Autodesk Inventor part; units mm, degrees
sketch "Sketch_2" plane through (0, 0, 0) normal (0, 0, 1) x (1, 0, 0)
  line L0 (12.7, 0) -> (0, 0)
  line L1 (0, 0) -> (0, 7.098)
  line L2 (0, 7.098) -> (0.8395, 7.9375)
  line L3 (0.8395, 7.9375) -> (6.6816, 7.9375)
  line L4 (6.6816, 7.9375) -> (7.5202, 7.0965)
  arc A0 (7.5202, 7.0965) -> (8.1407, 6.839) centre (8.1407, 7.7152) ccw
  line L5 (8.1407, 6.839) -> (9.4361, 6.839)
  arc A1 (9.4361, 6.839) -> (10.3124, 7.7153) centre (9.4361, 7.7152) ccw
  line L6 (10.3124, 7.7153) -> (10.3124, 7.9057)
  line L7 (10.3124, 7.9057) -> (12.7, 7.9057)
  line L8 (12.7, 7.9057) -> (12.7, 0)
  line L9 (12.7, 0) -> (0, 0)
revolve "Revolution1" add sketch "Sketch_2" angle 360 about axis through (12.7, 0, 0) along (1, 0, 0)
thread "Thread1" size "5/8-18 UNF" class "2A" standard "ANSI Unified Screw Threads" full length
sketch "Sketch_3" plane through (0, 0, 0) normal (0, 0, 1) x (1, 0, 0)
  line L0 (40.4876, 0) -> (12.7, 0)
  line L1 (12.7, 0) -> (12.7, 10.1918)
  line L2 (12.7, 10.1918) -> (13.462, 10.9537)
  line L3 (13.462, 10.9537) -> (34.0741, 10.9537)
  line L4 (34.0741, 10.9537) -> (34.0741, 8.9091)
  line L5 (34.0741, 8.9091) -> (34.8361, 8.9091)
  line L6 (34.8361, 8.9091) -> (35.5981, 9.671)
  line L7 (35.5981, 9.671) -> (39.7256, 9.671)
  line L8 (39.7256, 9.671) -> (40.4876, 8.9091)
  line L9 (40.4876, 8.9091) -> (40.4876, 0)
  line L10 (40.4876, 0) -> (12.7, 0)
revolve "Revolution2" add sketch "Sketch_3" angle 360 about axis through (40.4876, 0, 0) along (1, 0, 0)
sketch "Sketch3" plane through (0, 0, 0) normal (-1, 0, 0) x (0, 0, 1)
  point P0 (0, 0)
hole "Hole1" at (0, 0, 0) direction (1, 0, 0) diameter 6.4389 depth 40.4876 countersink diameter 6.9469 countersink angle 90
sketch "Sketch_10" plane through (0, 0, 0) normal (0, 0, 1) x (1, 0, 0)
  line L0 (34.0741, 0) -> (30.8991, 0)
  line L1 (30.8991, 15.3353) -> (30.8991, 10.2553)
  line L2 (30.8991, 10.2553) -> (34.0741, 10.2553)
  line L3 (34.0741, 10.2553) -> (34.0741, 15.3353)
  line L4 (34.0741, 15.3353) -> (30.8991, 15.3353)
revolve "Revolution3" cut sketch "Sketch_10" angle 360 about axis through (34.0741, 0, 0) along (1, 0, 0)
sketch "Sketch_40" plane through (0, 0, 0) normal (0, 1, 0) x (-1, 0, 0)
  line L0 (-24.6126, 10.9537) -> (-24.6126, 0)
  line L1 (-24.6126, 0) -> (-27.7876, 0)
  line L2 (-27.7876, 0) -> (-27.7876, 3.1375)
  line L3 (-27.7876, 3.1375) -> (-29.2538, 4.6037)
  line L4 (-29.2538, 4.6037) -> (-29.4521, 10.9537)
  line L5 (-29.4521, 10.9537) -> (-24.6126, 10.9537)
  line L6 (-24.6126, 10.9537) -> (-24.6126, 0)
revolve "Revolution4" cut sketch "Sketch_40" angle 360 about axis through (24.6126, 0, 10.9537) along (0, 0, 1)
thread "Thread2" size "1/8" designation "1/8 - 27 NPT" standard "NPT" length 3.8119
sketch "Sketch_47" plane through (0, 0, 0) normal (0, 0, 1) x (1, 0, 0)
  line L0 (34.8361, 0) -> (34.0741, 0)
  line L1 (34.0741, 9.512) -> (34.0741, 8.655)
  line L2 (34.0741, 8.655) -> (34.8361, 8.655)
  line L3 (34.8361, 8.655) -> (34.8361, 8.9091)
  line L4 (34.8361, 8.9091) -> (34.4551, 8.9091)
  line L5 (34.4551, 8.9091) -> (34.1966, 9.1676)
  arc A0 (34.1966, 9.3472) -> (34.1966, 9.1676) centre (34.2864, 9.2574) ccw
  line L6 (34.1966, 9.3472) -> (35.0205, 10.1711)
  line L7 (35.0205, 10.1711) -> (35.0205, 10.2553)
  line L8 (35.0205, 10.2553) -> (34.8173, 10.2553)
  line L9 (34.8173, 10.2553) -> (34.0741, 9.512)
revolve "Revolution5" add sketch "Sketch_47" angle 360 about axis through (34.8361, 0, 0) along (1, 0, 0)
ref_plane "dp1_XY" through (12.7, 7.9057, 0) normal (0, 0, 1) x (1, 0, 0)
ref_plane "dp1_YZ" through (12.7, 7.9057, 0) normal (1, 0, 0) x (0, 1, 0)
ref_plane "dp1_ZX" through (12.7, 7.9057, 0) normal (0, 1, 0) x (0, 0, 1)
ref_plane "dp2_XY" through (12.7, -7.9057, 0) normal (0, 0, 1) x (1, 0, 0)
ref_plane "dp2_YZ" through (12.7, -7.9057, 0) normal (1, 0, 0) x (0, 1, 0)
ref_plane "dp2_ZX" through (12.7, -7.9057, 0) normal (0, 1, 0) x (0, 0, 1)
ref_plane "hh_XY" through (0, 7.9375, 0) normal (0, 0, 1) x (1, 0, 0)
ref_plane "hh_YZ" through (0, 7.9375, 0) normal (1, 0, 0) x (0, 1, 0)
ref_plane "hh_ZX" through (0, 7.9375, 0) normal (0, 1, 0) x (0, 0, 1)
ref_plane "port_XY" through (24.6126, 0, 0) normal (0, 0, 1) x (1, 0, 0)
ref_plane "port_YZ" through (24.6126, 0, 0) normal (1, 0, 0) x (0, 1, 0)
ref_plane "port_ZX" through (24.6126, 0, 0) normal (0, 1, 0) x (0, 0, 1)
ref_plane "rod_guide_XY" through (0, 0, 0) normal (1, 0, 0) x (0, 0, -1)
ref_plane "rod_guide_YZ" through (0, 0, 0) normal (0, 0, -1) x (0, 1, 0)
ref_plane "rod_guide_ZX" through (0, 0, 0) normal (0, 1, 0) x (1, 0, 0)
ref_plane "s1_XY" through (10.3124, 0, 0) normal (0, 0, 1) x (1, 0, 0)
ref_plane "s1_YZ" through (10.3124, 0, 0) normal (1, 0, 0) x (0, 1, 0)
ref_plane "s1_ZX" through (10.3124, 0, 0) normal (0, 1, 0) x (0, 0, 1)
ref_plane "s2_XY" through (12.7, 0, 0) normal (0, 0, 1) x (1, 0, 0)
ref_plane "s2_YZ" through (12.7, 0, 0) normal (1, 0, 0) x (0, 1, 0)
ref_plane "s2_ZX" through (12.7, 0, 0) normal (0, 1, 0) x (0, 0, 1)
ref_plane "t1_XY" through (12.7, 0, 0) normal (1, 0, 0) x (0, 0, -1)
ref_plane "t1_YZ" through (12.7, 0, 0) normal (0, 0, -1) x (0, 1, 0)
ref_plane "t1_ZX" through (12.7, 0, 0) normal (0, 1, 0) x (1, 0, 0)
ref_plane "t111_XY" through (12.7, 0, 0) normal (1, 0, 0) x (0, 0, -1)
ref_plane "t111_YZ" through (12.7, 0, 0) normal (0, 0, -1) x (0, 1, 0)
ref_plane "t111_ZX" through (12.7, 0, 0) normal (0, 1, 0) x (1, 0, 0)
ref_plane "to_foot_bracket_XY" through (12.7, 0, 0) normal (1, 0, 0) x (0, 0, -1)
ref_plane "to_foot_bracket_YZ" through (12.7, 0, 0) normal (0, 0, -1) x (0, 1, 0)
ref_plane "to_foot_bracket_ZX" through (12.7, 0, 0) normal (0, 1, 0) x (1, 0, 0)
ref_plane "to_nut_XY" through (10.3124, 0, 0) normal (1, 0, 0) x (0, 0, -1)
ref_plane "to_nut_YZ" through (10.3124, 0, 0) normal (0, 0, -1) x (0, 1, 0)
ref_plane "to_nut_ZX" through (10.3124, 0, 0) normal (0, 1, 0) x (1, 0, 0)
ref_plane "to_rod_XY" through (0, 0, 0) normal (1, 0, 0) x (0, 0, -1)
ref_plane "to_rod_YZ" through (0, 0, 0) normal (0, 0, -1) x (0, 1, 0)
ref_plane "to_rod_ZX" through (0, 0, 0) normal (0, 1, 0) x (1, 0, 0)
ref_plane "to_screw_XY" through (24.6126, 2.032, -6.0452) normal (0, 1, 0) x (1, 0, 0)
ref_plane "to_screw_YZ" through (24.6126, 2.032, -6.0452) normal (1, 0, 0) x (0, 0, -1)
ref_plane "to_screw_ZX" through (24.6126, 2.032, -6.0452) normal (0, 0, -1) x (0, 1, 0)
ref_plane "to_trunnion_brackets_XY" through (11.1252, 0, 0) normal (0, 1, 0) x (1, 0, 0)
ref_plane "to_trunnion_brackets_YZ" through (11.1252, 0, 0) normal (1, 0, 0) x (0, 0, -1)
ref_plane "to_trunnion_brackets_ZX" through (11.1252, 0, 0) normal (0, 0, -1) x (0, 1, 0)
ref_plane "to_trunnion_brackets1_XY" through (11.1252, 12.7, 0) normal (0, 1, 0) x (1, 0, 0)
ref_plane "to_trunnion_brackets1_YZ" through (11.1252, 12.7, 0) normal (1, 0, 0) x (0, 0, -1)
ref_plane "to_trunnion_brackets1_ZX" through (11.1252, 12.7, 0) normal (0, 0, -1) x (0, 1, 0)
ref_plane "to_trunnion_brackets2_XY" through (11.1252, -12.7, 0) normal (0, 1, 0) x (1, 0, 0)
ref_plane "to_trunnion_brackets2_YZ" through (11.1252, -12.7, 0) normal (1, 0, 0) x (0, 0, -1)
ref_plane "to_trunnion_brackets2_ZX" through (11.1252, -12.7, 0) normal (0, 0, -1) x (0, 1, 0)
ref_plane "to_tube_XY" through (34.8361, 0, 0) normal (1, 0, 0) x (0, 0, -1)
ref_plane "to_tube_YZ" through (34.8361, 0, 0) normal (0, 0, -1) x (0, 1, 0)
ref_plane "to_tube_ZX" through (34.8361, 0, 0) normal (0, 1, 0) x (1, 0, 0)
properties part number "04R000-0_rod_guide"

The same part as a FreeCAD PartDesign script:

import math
import FreeCAD as App
import Part
import Sketcher
from FreeCAD import Vector
Q = App.Units.Quantity

doc = App.newDocument("Part")
body = doc.addObject("PartDesign::Body", "Body")

sketch1 = body.newObject("Sketcher::SketchObject", "Sketch")
sketch1.AttachmentSupport = (doc.getObject("XY_Plane"), [""])
sketch1.MapMode = "FlatFace"
sketch1.addGeometry(Part.LineSegment(Vector(0, 0, 0), Vector(12.7, 0, 0)), False)
sketch1.addGeometry(Part.LineSegment(Vector(12.7, 0, 0), Vector(12.7, 7.9057, 0)), False)
sketch1.addGeometry(Part.LineSegment(Vector(12.7, 7.9057, 0), Vector(10.3124, 7.9057, 0)), False)
sketch1.addGeometry(Part.LineSegment(Vector(10.3124, 7.9057, 0), Vector(10.3124, 7.7153, 0)), False)
sketch1.addGeometry(Part.ArcOfCircle(Part.Circle(Vector(9.4361, 7.7152, 0), Vector(0, 0, 1), 0.8762), math.radians(-90), math.radians(0.006538)), False)
sketch1.addGeometry(Part.LineSegment(Vector(9.4361, 6.839, 0), Vector(8.1407, 6.839, 0)), False)
sketch1.addGeometry(Part.ArcOfCircle(Part.Circle(Vector(8.1407, 7.7152, 0), Vector(0, 0, 1), 0.876248), math.radians(-135.083225), math.radians(-90)), False)
sketch1.addGeometry(Part.LineSegment(Vector(7.5202, 7.0965, 0), Vector(6.6816, 7.9375, 0)), False)
sketch1.addGeometry(Part.LineSegment(Vector(6.6816, 7.9375, 0), Vector(0.8395, 7.9375, 0)), False)
sketch1.addGeometry(Part.LineSegment(Vector(0.8395, 7.9375, 0), Vector(0, 7.098, 0)), False)
sketch1.addGeometry(Part.LineSegment(Vector(0, 7.098, 0), Vector(0, 0, 0)), False)
sketch1.addConstraint(Sketcher.Constraint("Coincident", 0, 2, 1, 1))
sketch1.addConstraint(Sketcher.Constraint("Coincident", 1, 2, 2, 1))
sketch1.addConstraint(Sketcher.Constraint("Coincident", 2, 2, 3, 1))
sketch1.addConstraint(Sketcher.Constraint("Tangent", 3, 2, 4, 2))
sketch1.addConstraint(Sketcher.Constraint("Tangent", 4, 1, 5, 1))
sketch1.addConstraint(Sketcher.Constraint("Tangent", 5, 2, 6, 2))
sketch1.addConstraint(Sketcher.Constraint("Tangent", 6, 1, 7, 1))
sketch1.addConstraint(Sketcher.Constraint("Coincident", 7, 2, 8, 1))
sketch1.addConstraint(Sketcher.Constraint("Coincident", 8, 2, 9, 1))
sketch1.addConstraint(Sketcher.Constraint("Coincident", 9, 2, 10, 1))
sketch1.addConstraint(Sketcher.Constraint("Coincident", 10, 2, 0, 1))
sketch1.addConstraint(Sketcher.Constraint("Horizontal", 0))
sketch1.addConstraint(Sketcher.Constraint("Vertical", 1))
sketch1.addConstraint(Sketcher.Constraint("Horizontal", 2))
sketch1.addConstraint(Sketcher.Constraint("Vertical", 3))
sketch1.addConstraint(Sketcher.Constraint("Horizontal", 5))
sketch1.addConstraint(Sketcher.Constraint("Horizontal", 8))
sketch1.addConstraint(Sketcher.Constraint("Vertical", 10))
sketch1.addConstraint(Sketcher.Constraint("Coincident", 10, 2, -1, 1))
sketch1.addConstraint(Sketcher.Constraint("Equal", 4, 6))
sketch1.addConstraint(Sketcher.Constraint("DistanceX", 0, 1, 0, 2, Q("0.5 in")))
sketch1.addConstraint(Sketcher.Constraint("Angle", 9, Q("-135 deg")))
sketch1.addConstraint(Sketcher.Constraint("DistanceX", 8, 2, 8, 1, Q("0.23 in")))
sketch1.addConstraint(Sketcher.Constraint("Radius", 4, Q("0.0345 in")))
sketch1.addConstraint(Sketcher.Constraint("DistanceX", 2, 2, 2, 1, Q("0.094 in")))
sketch1.addConstraint(Sketcher.Constraint("DistanceX", 5, 2, 5, 1, Q("0.051 in")))
sketch1.addConstraint(Sketcher.Constraint("DistanceY", 3, 2, 3, 1, Q("0.0075 in")))
sketch1.addConstraint(Sketcher.Constraint("DistanceY", -1, 1, 7, 2, Q("0.3125 in")))
sketch1.addConstraint(Sketcher.Constraint("DistanceY", 1, 1, 1, 2, 7.9057))
sketch1.addConstraint(Sketcher.Constraint("DistanceY", 10, 2, 10, 1, 7.098))
revolution = body.newObject("PartDesign::Revolution", "Revolution")
revolution.Profile = sketch1
revolution.ReferenceAxis = (sketch1, ["H_Axis"])
revolution.Angle = 360

sketch2 = body.newObject("Sketcher::SketchObject", "Sketch001")
sketch2.AttachmentSupport = (doc.getObject("XY_Plane"), [""])
sketch2.MapMode = "FlatFace"
sketch2.addGeometry(Part.LineSegment(Vector(12.7, 0, 0), Vector(40.4876, 0, 0)), False)
sketch2.addGeometry(Part.LineSegment(Vector(40.4876, 0, 0), Vector(40.4876, 8.9091, 0)), False)
sketch2.addGeometry(Part.LineSegment(Vector(40.4876, 8.9091, 0), Vector(39.7256, 9.671, 0)), False)
sketch2.addGeometry(Part.LineSegment(Vector(39.7256, 9.671, 0), Vector(35.5981, 9.671, 0)), False)
sketch2.addGeometry(Part.LineSegment(Vector(35.5981, 9.671, 0), Vector(34.8361, 8.9091, 0)), False)
sketch2.addGeometry(Part.LineSegment(Vector(34.8361, 8.9091, 0), Vector(34.0741, 8.9091, 0)), False)
sketch2.addGeometry(Part.LineSegment(Vector(34.0741, 8.9091, 0), Vector(34.0741, 10.9537, 0)), False)
sketch2.addGeometry(Part.LineSegment(Vector(34.0741, 10.9537, 0), Vector(13.462, 10.9537, 0)), False)
sketch2.addGeometry(Part.LineSegment(Vector(13.462, 10.9537, 0), Vector(12.7, 10.1918, 0)), False)
sketch2.addGeometry(Part.LineSegment(Vector(12.7, 10.1918, 0), Vector(12.7, 0, 0)), False)
sketch2.addConstraint(Sketcher.Constraint("Coincident", 0, 2, 1, 1))
sketch2.addConstraint(Sketcher.Constraint("Coincident", 1, 2, 2, 1))
sketch2.addConstraint(Sketcher.Constraint("Coincident", 2, 2, 3, 1))
sketch2.addConstraint(Sketcher.Constraint("Coincident", 3, 2, 4, 1))
sketch2.addConstraint(Sketcher.Constraint("Coincident", 4, 2, 5, 1))
sketch2.addConstraint(Sketcher.Constraint("Coincident", 5, 2, 6, 1))
sketch2.addConstraint(Sketcher.Constraint("Coincident", 6, 2, 7, 1))
sketch2.addConstraint(Sketcher.Constraint("Coincident", 7, 2, 8, 1))
sketch2.addConstraint(Sketcher.Constraint("Coincident", 8, 2, 9, 1))
sketch2.addConstraint(Sketcher.Constraint("Coincident", 9, 2, 0, 1))
sketch2.addConstraint(Sketcher.Constraint("Horizontal", 0))
sketch2.addConstraint(Sketcher.Constraint("Vertical", 1))
sketch2.addConstraint(Sketcher.Constraint("Horizontal", 3))
sketch2.addConstraint(Sketcher.Constraint("Horizontal", 5))
sketch2.addConstraint(Sketcher.Constraint("Vertical", 6))
sketch2.addConstraint(Sketcher.Constraint("Horizontal", 7))
sketch2.addConstraint(Sketcher.Constraint("Vertical", 9))
sketch2.addConstraint(Sketcher.Constraint("PointOnObject", 0, 2, -1))
sketch2.addConstraint(Sketcher.Constraint("Perpendicular", 2, 4))
sketch2.addConstraint(Sketcher.Constraint("Parallel", 4, 8))
sketch2.addConstraint(Sketcher.Constraint("Horizontal", 1, 2, 4, 2))
sketch2.addConstraint(Sketcher.Constraint("Equal", 2, 4))
sketch2.addConstraint(Sketcher.Constraint("Equal", 4, 8))
sketch2.addConstraint(Sketcher.Constraint("DistanceX", 5, 2, 5, 1, Q("0.03 in")))
sketch2.addConstraint(Sketcher.Constraint("DistanceX", -1, 1, 8, 2, Q("0.5 in")))
sketch2.addConstraint(Sketcher.Constraint("DistanceX", 0, 1, 0, 2, Q("1.094 in")))
sketch2.addConstraint(Sketcher.Constraint("DistanceX", -1, 1, 7, 2, Q("0.53 in")))
sketch2.addConstraint(Sketcher.Constraint("DistanceX", 3, 2, 3, 1, Q("0.1625 in")))
sketch2.addConstraint(Sketcher.Constraint("DistanceY", 6, 1, 6, 2, Q("0.0805 in")))
sketch2.addConstraint(Sketcher.Constraint("DistanceY", 1, 1, 1, 2, 8.909))
revolution2 = body.newObject("PartDesign::Revolution", "Revolution001")
revolution2.Profile = sketch2
revolution2.ReferenceAxis = (sketch2, ["H_Axis"])
revolution2.Angle = 360

sketch3 = body.newObject("Sketcher::SketchObject", "Sketch002")
sketch3.AttachmentSupport = (doc.getObject("YZ_Plane"), [""])
sketch3.MapMode = "FlatFace"
sketch3.addGeometry(Part.Circle(Vector(0, 0, 0), Vector(0, 0, 1), 3.21945), False)
sketch3.addConstraint(Sketcher.Constraint("Coincident", 0, 3, -1, 1))
sketch3.addConstraint(Sketcher.Constraint("Diameter", 0, Q("0.2535 in")))
doc.recompute()
hole = body.newObject("PartDesign::Hole", "Hole")
hole.Profile = sketch3
hole.ThreadType = "None"
hole.Diameter = Q("0.2535 in")
hole.DepthType = "Dimension"
hole.Depth = Q("1.594 in")
hole.DrillPoint = "Flat"
hole.HoleCutType = "Countersink"
hole.HoleCutDiameter = Q("0.2735 in")
hole.HoleCutCountersinkAngle = 90
hole.Reversed = True

sketch4 = body.newObject("Sketcher::SketchObject", "Sketch003")
sketch4.AttachmentSupport = (doc.getObject("XY_Plane"), [""])
sketch4.MapMode = "FlatFace"
sketch4.addGeometry(Part.LineSegment(Vector(34.0741, 15.3353, 0), Vector(30.8991, 15.3353, 0)), False)
sketch4.addGeometry(Part.LineSegment(Vector(30.8991, 15.3353, 0), Vector(30.8991, 10.2553, 0)), False)
sketch4.addGeometry(Part.LineSegment(Vector(30.8991, 10.2553, 0), Vector(34.0741, 10.2553, 0)), False)
sketch4.addGeometry(Part.LineSegment(Vector(34.0741, 10.2553, 0), Vector(34.0741, 15.3353, 0)), False)
sketch4.addConstraint(Sketcher.Constraint("Coincident", 0, 2, 1, 1))
sketch4.addConstraint(Sketcher.Constraint("Coincident", 1, 2, 2, 1))
sketch4.addConstraint(Sketcher.Constraint("Coincident", 2, 2, 3, 1))
sketch4.addConstraint(Sketcher.Constraint("Coincident", 3, 2, 0, 1))
sketch4.addConstraint(Sketcher.Constraint("Horizontal", 0))
sketch4.addConstraint(Sketcher.Constraint("Vertical", 1))
sketch4.addConstraint(Sketcher.Constraint("Horizontal", 2))
sketch4.addConstraint(Sketcher.Constraint("Vertical", 3))
sketch4.addConstraint(Sketcher.Constraint("DistanceY", 1, 2, 1, 1, Q("0.2 in")))
sketch4.addConstraint(Sketcher.Constraint("DistanceX", 0, 2, 0, 1, Q("0.125 in")))
sketch4.addConstraint(Sketcher.Constraint("DistanceX", -1, 1, 0, 2, Q("1.2165 in")))
sketch4.addConstraint(Sketcher.Constraint("DistanceY", -1, 1, 0, 2, 15.3353))
groove = body.newObject("PartDesign::Groove", "Groove")
groove.Profile = sketch4
groove.ReferenceAxis = (sketch4, ["H_Axis"])
groove.Angle = 360

sketch5 = body.newObject("Sketcher::SketchObject", "Sketch004")
sketch5.AttachmentSupport = (doc.getObject("XZ_Plane"), [""])
sketch5.MapMode = "FlatFace"
sketch5.addGeometry(Part.LineSegment(Vector(24.6126, 0, 0), Vector(24.6126, 10.9537, 0)), False)
sketch5.addGeometry(Part.LineSegment(Vector(24.6126, 10.9537, 0), Vector(29.4521, 10.9537, 0)), False)
sketch5.addGeometry(Part.LineSegment(Vector(29.4521, 10.9537, 0), Vector(29.2538, 4.6037, 0)), False)
sketch5.addGeometry(Part.LineSegment(Vector(29.2538, 4.6037, 0), Vector(27.7876, 3.1375, 0)), False)
sketch5.addGeometry(Part.LineSegment(Vector(27.7876, 3.1375, 0), Vector(27.7876, 0, 0)), False)
sketch5.addGeometry(Part.LineSegment(Vector(27.7876, 0, 0), Vector(24.6126, 0, 0)), False)
sketch5.addGeometry(Part.LineSegment(Vector(24.6126, 0, 0), Vector(24.6126, 10.9537, 0)), True)
sketch5.addConstraint(Sketcher.Constraint("Coincident", 0, 2, 1, 1))
sketch5.addConstraint(Sketcher.Constraint("Coincident", 1, 2, 2, 1))
sketch5.addConstraint(Sketcher.Constraint("Coincident", 2, 2, 3, 1))
sketch5.addConstraint(Sketcher.Constraint("Coincident", 3, 2, 4, 1))
sketch5.addConstraint(Sketcher.Constraint("Coincident", 4, 2, 5, 1))
sketch5.addConstraint(Sketcher.Constraint("Coincident", 5, 2, 0, 1))
sketch5.addConstraint(Sketcher.Constraint("Vertical", 0))
sketch5.addConstraint(Sketcher.Constraint("Horizontal", 1))
sketch5.addConstraint(Sketcher.Constraint("Vertical", 4))
sketch5.addConstraint(Sketcher.Constraint("Horizontal", 5))
sketch5.addConstraint(Sketcher.Constraint("Vertical", 6))
sketch5.addConstraint(Sketcher.Constraint("Coincident", 6, 1, 5, 2))
sketch5.addConstraint(Sketcher.Constraint("PointOnObject", 4, 2, -1))
sketch5.addConstraint(Sketcher.Constraint("Horizontal", 1, 2, 6, 2))
sketch5.addConstraint(Sketcher.Constraint("Angle", 3, Q("-135 deg")))
sketch5.addConstraint(Sketcher.Constraint("DistanceX", 5, 2, 5, 1, Q("0.125 in")))
sketch5.addConstraint(Sketcher.Constraint("DistanceY", 2, 2, 1, 2, Q("0.25 in")))
sketch5.addConstraint(Sketcher.Constraint("DistanceX", -1, 1, 0, 2, Q("0.969 in")))
sketch5.addConstraint(Sketcher.Constraint("DistanceX", 1, 1, 1, 2, 4.8395))
sketch5.addConstraint(Sketcher.Constraint("DistanceY", 0, 1, 0, 2, 10.9537))
sketch5.addConstraint(Sketcher.Constraint("DistanceY", 4, 2, 4, 1, 3.1375))
groove2 = body.newObject("PartDesign::Groove", "Groove001")
groove2.Profile = sketch5
groove2.ReferenceAxis = (sketch5, ["Axis0"])
groove2.Angle = 360

sketch6 = body.newObject("Sketcher::SketchObject", "Sketch005")
sketch6.AttachmentSupport = (doc.getObject("XY_Plane"), [""])
sketch6.MapMode = "FlatFace"
sketch6.addGeometry(Part.LineSegment(Vector(34.8173, 10.2553, 0), Vector(34.0741, 9.512, 0)), False)
sketch6.addGeometry(Part.LineSegment(Vector(34.0741, 9.512, 0), Vector(34.0741, 8.655, 0)), False)
sketch6.addGeometry(Part.LineSegment(Vector(34.0741, 8.655, 0), Vector(34.8361, 8.655, 0)), False)
sketch6.addGeometry(Part.LineSegment(Vector(34.8361, 8.655, 0), Vector(34.8361, 8.9091, 0)), False)
sketch6.addGeometry(Part.LineSegment(Vector(34.8361, 8.9091, 0), Vector(34.4551, 8.9091, 0)), False)
sketch6.addGeometry(Part.LineSegment(Vector(34.4551, 8.9091, 0), Vector(34.1966, 9.1676, 0)), False)
sketch6.addGeometry(Part.ArcOfCircle(Part.Circle(Vector(34.2864, 9.2574, 0), Vector(0, 0, 1), 0.126996), math.radians(135), math.radians(225)), False)
sketch6.addGeometry(Part.LineSegment(Vector(34.1966, 9.3472, 0), Vector(35.0205, 10.1711, 0)), False)
sketch6.addGeometry(Part.LineSegment(Vector(35.0205, 10.1711, 0), Vector(35.0205, 10.2553, 0)), False)
sketch6.addGeometry(Part.LineSegment(Vector(35.0205, 10.2553, 0), Vector(34.8173, 10.2553, 0)), False)
sketch6.addConstraint(Sketcher.Constraint("Coincident", 0, 2, 1, 1))
sketch6.addConstraint(Sketcher.Constraint("Coincident", 1, 2, 2, 1))
sketch6.addConstraint(Sketcher.Constraint("Coincident", 2, 2, 3, 1))
sketch6.addConstraint(Sketcher.Constraint("Coincident", 3, 2, 4, 1))
sketch6.addConstraint(Sketcher.Constraint("Coincident", 4, 2, 5, 1))
sketch6.addConstraint(Sketcher.Constraint("Tangent", 5, 2, 6, 2))
sketch6.addConstraint(Sketcher.Constraint("Tangent", 6, 1, 7, 1))
sketch6.addConstraint(Sketcher.Constraint("Coincident", 7, 2, 8, 1))
sketch6.addConstraint(Sketcher.Constraint("Coincident", 8, 2, 9, 1))
sketch6.addConstraint(Sketcher.Constraint("Coincident", 9, 2, 0, 1))
sketch6.addConstraint(Sketcher.Constraint("Vertical", 1))
sketch6.addConstraint(Sketcher.Constraint("Horizontal", 2))
sketch6.addConstraint(Sketcher.Constraint("Vertical", 3))
sketch6.addConstraint(Sketcher.Constraint("Horizontal", 4))
sketch6.addConstraint(Sketcher.Constraint("Vertical", 8))
sketch6.addConstraint(Sketcher.Constraint("Horizontal", 9))
sketch6.addConstraint(Sketcher.Constraint("Perpendicular", 0, 5))
sketch6.addConstraint(Sketcher.Constraint("Perpendicular", 5, 7))
sketch6.addConstraint(Sketcher.Constraint("Vertical", 5, 2, 6, 1))
sketch6.addConstraint(Sketcher.Constraint("Radius", 6, Q("0.005 in")))
sketch6.addConstraint(Sketcher.Constraint("DistanceX", 2, 1, 2, 2, Q("0.03 in")))
sketch6.addConstraint(Sketcher.Constraint("DistanceY", 3, 1, 3, 2, Q("0.01 in")))
sketch6.addConstraint(Sketcher.Constraint("DistanceX", 4, 2, 4, 1, Q("0.015 in")))
sketch6.addConstraint(Sketcher.Constraint("DistanceX", 9, 2, 9, 1, Q("0.008 in")))
sketch6.addConstraint(Sketcher.Constraint("DistanceY", -1, 1, 6, 1, Q("0.368 in")))
sketch6.addConstraint(Sketcher.Constraint("DistanceY", 3, 2, 8, 2, Q("0.053 in")))
sketch6.addConstraint(Sketcher.Constraint("Distance", 5, Q("0.0144 in")))
sketch6.addConstraint(Sketcher.Constraint("DistanceY", 1, 2, 1, 1, 0.857))
sketch6.addConstraint(Sketcher.Constraint("DistanceX", -1, 1, 0, 2, Q("1.3415 in")))
revolution3 = body.newObject("PartDesign::Revolution", "Revolution002")
revolution3.Profile = sketch6
revolution3.ReferenceAxis = (sketch6, ["H_Axis"])
revolution3.Angle = 360

doc.recompute()
